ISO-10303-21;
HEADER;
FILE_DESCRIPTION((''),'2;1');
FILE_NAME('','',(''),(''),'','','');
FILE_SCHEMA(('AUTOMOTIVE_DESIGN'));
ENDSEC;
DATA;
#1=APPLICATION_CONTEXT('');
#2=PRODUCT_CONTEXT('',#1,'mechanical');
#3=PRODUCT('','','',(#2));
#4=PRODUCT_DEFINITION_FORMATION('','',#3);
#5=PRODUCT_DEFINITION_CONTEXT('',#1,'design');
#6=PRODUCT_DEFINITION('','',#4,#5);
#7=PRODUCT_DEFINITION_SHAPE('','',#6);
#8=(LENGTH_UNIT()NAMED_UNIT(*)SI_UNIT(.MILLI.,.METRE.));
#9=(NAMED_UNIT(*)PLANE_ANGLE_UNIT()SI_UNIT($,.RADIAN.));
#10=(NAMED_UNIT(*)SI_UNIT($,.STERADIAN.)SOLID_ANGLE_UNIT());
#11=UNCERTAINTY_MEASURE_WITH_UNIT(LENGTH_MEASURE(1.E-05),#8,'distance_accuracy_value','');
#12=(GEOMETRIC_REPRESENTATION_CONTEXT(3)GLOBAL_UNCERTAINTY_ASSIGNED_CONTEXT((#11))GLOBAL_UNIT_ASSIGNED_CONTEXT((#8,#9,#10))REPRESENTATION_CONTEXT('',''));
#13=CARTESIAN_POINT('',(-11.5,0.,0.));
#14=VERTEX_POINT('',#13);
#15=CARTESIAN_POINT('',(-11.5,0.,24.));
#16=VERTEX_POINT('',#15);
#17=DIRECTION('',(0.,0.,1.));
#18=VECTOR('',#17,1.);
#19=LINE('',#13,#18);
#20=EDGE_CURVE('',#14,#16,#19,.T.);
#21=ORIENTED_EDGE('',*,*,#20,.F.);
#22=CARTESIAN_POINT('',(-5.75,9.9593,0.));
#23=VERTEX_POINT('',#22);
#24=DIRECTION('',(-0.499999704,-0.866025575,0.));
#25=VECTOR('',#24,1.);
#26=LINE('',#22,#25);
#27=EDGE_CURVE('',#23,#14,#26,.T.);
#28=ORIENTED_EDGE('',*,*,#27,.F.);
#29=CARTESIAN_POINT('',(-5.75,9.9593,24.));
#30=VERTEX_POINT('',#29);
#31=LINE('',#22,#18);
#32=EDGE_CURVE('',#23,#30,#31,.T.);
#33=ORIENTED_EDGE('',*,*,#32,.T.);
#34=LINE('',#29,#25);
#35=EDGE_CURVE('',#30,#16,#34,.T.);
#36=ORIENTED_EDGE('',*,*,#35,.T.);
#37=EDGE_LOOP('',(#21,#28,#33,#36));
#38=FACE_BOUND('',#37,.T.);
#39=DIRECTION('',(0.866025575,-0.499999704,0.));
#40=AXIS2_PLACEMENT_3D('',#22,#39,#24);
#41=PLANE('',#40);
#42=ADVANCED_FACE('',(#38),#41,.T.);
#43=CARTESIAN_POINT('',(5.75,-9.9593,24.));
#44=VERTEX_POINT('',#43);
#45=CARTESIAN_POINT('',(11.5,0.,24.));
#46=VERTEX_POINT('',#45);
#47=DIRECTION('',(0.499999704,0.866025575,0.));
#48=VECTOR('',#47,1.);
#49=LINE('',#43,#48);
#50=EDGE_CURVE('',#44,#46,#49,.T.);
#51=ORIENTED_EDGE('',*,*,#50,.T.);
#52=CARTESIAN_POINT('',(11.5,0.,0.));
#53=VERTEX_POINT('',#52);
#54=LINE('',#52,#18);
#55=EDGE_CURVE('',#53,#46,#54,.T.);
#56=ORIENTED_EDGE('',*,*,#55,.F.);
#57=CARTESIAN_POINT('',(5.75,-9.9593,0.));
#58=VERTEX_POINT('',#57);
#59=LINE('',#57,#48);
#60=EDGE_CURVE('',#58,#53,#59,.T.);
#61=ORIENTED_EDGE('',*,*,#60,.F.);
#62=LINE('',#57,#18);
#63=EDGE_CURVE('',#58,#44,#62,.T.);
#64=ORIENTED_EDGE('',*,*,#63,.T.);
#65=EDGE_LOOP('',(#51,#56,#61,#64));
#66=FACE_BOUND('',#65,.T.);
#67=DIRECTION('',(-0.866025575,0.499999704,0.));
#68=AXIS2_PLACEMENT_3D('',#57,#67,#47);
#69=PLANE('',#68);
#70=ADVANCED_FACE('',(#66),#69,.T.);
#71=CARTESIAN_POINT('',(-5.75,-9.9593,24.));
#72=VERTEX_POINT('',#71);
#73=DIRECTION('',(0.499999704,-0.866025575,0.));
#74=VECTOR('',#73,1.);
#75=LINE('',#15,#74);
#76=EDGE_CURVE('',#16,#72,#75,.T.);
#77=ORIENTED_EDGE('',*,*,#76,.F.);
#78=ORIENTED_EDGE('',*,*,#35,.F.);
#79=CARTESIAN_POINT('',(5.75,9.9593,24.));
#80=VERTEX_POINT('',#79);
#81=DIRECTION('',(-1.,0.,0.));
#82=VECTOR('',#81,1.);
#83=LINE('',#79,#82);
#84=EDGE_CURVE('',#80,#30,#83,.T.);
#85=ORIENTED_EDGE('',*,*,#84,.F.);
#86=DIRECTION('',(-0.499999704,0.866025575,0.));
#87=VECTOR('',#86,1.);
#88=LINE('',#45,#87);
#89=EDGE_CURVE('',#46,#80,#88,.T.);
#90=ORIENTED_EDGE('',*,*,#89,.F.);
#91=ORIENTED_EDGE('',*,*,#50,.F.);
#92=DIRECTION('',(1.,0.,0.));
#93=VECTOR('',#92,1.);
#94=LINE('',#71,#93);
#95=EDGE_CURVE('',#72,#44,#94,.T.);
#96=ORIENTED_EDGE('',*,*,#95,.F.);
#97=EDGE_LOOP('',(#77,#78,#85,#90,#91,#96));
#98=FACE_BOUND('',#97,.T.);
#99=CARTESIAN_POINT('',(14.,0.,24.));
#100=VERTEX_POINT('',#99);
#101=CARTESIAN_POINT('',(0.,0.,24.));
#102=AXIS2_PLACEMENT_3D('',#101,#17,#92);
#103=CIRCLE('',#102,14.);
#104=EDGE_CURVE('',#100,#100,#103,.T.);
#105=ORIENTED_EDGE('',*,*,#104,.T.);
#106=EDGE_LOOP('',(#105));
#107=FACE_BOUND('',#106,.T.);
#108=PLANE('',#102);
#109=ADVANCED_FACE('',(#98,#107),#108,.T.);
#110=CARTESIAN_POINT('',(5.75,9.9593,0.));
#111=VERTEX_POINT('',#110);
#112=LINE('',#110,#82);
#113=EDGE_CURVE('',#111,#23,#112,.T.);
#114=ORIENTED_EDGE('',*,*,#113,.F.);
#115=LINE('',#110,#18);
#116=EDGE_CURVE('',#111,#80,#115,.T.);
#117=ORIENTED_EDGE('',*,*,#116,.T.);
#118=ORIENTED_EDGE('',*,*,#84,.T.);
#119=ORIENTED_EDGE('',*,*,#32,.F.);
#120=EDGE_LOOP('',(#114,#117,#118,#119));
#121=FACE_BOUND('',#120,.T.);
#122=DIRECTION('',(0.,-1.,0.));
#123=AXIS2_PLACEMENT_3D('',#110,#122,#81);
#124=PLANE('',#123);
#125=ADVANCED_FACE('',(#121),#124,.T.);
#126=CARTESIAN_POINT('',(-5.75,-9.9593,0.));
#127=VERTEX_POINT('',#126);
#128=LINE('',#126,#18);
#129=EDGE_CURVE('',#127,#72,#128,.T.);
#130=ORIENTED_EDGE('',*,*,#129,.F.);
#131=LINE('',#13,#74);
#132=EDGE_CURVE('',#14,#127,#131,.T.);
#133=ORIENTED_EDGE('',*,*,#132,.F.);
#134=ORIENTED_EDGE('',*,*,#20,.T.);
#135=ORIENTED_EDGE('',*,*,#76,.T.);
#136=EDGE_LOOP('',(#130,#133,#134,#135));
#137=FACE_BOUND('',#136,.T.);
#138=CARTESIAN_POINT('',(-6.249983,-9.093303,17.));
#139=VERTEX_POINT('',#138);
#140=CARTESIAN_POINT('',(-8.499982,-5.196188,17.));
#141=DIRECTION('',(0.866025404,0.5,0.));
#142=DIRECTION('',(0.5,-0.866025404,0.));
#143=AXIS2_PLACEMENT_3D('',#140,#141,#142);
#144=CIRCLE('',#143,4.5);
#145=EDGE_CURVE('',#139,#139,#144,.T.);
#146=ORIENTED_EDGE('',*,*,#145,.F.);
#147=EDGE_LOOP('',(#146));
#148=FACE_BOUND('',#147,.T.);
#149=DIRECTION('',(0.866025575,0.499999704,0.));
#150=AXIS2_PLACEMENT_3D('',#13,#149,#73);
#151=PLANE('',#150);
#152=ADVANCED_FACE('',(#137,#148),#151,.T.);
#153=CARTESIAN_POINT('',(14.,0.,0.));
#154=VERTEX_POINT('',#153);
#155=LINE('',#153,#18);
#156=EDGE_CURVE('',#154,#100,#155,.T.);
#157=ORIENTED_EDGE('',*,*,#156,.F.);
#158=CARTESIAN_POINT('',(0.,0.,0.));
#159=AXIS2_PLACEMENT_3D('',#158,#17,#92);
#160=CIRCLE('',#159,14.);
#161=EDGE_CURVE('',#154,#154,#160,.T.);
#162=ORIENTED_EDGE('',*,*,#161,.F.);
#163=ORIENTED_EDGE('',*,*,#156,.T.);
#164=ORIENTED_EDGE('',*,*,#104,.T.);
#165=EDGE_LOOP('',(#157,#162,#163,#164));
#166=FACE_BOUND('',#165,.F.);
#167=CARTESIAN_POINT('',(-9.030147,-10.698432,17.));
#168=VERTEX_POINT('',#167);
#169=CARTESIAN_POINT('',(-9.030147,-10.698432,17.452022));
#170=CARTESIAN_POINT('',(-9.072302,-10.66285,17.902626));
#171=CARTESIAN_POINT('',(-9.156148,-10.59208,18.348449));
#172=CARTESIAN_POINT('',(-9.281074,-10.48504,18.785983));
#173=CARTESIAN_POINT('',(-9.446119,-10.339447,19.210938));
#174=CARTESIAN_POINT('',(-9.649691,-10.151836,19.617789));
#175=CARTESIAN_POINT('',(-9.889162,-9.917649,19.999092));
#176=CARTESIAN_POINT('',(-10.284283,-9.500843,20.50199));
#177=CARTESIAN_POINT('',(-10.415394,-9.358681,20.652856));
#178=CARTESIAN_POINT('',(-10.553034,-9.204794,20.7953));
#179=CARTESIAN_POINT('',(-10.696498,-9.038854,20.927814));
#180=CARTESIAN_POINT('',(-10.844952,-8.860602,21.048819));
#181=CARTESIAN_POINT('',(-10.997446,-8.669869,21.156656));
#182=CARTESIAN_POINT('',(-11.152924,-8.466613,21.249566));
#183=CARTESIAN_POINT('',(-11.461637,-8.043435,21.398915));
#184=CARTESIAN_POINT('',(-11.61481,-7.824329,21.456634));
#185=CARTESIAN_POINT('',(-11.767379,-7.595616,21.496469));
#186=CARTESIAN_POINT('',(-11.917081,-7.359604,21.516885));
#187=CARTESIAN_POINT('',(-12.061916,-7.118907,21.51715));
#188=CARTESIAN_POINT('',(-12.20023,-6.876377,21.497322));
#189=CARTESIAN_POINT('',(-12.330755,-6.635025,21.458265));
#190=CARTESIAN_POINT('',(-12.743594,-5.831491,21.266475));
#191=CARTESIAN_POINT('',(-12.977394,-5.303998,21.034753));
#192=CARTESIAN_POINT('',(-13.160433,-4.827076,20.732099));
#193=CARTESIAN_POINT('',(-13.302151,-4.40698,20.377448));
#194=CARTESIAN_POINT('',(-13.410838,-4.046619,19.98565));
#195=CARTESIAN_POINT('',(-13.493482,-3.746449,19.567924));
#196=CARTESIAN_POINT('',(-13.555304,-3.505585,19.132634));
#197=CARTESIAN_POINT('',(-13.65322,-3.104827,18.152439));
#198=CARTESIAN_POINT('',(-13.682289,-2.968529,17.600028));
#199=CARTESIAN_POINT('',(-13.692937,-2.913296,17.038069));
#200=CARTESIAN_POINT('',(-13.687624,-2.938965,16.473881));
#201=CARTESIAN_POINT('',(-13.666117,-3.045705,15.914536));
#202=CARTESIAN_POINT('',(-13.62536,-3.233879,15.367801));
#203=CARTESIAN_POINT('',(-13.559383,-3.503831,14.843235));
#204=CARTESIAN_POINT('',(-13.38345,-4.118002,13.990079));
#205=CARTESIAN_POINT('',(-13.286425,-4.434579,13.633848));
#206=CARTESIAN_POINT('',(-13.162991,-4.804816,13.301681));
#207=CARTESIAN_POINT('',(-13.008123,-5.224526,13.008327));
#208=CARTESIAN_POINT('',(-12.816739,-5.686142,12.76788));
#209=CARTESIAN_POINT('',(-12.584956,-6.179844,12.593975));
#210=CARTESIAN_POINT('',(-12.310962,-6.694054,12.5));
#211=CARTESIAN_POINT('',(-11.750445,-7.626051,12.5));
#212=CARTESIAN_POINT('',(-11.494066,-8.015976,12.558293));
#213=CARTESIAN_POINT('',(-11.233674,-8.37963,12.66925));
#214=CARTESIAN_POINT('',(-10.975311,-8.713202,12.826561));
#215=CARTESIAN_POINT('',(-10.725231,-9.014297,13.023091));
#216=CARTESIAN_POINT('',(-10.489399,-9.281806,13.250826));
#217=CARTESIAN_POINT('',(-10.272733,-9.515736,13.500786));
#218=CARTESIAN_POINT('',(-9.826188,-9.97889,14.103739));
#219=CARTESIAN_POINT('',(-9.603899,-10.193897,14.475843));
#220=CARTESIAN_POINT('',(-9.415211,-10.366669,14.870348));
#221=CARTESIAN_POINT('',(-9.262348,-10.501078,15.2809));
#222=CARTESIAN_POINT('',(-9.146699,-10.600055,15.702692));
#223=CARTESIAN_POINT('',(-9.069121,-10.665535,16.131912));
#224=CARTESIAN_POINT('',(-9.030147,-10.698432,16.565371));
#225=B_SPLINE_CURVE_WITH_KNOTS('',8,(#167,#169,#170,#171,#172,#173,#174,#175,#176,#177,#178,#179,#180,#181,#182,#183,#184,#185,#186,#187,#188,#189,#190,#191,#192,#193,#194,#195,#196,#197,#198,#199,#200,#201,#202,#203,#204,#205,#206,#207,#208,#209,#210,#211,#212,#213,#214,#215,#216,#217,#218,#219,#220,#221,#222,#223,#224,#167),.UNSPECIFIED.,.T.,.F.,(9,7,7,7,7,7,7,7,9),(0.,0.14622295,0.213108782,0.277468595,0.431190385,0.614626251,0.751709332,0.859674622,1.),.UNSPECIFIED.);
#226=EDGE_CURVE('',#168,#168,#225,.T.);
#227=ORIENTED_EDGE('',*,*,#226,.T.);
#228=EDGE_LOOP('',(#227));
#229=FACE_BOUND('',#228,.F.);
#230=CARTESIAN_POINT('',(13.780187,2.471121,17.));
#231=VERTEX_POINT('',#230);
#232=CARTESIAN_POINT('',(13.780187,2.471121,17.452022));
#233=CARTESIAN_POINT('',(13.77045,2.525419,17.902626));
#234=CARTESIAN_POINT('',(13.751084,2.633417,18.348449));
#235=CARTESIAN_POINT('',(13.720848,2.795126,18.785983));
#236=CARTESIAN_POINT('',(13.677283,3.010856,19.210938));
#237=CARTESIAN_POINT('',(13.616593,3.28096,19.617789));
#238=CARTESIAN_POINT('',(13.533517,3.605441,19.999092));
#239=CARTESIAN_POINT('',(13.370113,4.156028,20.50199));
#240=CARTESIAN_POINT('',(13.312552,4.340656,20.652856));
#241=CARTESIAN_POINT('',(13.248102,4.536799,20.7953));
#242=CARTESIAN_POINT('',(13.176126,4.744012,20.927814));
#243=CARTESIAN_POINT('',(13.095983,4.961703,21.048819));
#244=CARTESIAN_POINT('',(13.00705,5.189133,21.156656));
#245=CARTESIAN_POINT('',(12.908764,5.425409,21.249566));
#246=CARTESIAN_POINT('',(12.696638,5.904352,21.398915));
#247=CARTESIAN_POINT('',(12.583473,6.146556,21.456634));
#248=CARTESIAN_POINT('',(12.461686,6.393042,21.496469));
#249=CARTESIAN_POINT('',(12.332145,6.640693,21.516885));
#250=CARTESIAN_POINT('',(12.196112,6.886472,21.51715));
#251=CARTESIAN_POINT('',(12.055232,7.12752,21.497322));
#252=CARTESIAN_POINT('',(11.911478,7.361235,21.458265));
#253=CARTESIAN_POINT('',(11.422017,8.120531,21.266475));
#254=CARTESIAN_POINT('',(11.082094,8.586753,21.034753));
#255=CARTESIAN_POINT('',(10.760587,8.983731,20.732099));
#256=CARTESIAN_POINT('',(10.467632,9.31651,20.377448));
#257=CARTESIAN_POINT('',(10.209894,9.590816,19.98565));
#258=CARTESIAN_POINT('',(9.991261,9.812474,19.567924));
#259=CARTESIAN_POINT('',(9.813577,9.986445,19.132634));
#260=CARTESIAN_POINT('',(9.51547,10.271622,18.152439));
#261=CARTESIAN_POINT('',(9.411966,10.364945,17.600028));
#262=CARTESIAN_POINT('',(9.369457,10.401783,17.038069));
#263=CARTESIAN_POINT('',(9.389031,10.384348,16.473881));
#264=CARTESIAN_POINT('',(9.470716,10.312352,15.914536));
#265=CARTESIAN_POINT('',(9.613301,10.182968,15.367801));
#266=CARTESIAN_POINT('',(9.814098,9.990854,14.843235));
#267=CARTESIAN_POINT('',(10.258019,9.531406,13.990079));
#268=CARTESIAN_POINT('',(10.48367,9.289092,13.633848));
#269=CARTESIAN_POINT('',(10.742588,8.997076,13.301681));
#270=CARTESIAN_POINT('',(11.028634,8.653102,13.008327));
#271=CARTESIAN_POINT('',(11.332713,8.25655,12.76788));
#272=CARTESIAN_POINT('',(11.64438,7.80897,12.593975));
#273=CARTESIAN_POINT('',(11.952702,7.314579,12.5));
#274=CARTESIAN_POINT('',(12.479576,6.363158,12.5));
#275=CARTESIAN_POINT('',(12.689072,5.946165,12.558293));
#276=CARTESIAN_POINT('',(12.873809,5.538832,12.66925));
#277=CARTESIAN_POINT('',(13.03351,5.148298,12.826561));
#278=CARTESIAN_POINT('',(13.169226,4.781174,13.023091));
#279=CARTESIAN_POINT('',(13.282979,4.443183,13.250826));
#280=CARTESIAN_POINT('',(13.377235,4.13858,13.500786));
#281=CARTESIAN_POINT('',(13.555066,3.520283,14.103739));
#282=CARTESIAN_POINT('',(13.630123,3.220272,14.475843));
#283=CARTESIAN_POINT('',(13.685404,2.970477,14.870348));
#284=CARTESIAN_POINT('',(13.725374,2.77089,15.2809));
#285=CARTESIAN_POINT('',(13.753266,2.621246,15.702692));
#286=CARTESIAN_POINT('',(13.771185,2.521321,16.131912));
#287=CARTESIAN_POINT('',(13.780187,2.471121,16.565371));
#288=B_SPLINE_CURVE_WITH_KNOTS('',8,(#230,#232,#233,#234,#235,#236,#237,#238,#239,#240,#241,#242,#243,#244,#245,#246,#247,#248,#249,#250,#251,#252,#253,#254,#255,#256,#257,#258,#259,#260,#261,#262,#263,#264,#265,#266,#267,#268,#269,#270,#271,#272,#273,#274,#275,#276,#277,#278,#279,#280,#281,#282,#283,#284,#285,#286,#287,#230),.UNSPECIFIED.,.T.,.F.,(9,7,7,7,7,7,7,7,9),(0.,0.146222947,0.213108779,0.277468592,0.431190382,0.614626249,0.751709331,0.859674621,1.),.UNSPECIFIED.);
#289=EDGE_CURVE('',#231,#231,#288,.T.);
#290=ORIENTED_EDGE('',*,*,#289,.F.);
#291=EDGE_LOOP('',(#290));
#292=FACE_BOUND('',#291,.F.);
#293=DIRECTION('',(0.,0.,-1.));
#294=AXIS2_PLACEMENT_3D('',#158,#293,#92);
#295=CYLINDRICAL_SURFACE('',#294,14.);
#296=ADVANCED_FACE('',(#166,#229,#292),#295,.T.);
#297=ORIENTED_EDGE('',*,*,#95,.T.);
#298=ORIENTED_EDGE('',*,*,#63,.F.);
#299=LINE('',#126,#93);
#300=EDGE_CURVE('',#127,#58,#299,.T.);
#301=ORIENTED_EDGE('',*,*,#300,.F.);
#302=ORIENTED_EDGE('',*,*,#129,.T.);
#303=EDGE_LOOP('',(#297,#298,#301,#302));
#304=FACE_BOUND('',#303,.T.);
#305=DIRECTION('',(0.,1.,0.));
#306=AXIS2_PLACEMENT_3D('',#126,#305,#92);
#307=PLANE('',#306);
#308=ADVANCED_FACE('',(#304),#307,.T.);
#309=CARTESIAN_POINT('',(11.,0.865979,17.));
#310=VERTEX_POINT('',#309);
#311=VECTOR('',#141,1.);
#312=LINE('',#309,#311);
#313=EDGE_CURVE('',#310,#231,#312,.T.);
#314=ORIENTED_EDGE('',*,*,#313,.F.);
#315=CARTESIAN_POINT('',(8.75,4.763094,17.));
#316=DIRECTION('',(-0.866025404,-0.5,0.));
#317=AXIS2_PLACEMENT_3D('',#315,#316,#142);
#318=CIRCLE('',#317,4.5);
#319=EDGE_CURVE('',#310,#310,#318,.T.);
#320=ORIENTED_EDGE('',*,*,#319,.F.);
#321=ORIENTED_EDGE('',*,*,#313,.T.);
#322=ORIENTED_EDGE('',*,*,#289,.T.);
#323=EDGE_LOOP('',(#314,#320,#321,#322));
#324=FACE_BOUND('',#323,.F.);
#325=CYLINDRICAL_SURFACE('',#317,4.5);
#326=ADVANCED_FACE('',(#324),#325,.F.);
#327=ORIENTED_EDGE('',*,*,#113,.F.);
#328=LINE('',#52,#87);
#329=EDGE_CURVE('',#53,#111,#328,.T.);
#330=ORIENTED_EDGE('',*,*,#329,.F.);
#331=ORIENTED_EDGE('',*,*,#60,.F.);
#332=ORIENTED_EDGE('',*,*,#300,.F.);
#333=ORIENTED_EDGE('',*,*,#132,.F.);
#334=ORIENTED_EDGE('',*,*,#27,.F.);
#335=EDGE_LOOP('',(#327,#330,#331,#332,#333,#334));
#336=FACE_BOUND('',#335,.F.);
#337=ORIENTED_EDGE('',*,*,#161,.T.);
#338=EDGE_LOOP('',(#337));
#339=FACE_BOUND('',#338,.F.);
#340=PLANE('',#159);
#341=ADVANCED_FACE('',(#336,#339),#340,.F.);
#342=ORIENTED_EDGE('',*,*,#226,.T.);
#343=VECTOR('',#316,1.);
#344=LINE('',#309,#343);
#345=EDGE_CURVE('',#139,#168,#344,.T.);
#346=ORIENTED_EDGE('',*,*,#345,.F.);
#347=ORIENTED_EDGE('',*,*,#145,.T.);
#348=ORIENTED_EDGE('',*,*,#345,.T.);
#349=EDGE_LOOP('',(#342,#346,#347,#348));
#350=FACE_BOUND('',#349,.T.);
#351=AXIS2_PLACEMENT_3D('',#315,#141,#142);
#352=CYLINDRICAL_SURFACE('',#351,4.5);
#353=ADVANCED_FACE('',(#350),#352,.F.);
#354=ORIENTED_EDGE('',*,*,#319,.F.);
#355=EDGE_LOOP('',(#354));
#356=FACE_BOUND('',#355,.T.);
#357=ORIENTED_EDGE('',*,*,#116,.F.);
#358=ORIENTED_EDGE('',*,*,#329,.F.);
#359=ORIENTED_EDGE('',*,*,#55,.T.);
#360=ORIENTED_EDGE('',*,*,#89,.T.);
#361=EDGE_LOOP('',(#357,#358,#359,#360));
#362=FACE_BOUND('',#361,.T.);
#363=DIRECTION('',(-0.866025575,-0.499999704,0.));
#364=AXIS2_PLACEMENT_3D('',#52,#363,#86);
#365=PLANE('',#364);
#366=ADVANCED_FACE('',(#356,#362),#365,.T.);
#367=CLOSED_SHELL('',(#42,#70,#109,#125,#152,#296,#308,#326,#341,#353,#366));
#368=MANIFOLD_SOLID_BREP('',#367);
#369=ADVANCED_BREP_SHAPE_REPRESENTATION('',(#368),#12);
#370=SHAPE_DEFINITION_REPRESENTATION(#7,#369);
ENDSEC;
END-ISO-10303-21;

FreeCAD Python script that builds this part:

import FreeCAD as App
import Part
import Sketcher

V = App.Vector
Q = App.Units.Quantity


def add_polygon(sketch, points):
    """Adds a closed chain of lines whose ends are joined by coincident constraints."""
    first, n = sketch.GeometryCount, len(points)
    for a, b in zip(points, points[1:] + points[:1]):
        sketch.addGeometry(Part.LineSegment(App.Vector(*a, 0), App.Vector(*b, 0)), False)
    for i in range(n):
        sketch.addConstraint(Sketcher.Constraint("Coincident", first + i, 2, first + (i + 1) % n, 1))

doc = App.newDocument("Part")
body = doc.addObject("PartDesign::Body", "Body")

sketch1 = body.newObject("Sketcher::SketchObject", "Sketch")
sketch1.AttachmentSupport = (doc.getObject("XY_Plane"), [""])
sketch1.MapMode = "FlatFace"
sketch1.addGeometry(Part.Circle(V(0, 0, 0), V(0, 0, 1), 14), False)
add_polygon(sketch1, [(6, 10), (12, 0), (6, -10), (-6, -10), (-12, 0), (-6, 10)])
sketch1.addConstraint(Sketcher.Constraint("Horizontal", 3))
sketch1.addConstraint(Sketcher.Constraint("Horizontal", 6))
sketch1.addConstraint(Sketcher.Constraint("Coincident", 0, 3, -1, 1))
sketch1.addConstraint(Sketcher.Constraint("Symmetric", 1, 2, 4, 2, -1, 1))
sketch1.addConstraint(Sketcher.Constraint("Symmetric", 2, 2, 5, 2, -1, 1))
sketch1.addConstraint(Sketcher.Constraint("PointOnObject", 1, 2, -1))
sketch1.addConstraint(Sketcher.Constraint("Parallel", 1, 4))
sketch1.addConstraint(Sketcher.Constraint("Vertical", 3, 2, 5, 2))
sketch1.addConstraint(Sketcher.Constraint("Diameter", 0, 28.0))
sketch1.addConstraint(Sketcher.Constraint("DistanceX", 4, 2, 1, 2, 23.0))
sketch1.addConstraint(Sketcher.Constraint("Angle", 1, Q("-60 deg")))
sketch1.addConstraint(Sketcher.Constraint("DistanceX", 3, 2, 3, 1, 11.5))
pad1 = body.newObject("PartDesign::Pad", "Pad")
pad1.Profile = sketch1
pad1.Length = 24

sketch2 = body.newObject("Sketcher::SketchObject", "Sketch001")
sketch2.Placement = App.Placement(V(8.625, 4.9796, 0), App.Rotation(V(0.5, -0.866025404, 0), V(0, 0, 1), V(-0.866025404, -0.5, 0), "ZXY"))
sketch2.addGeometry(Part.Circle(V(0.2, 17, 0), V(0, 0, 1), 4.5), False)
sketch2.addConstraint(Sketcher.Constraint("Diameter", 0, 9.0))
sketch2.addConstraint(Sketcher.Constraint("DistanceY", -1, 1, 0, 3, 17.0))
sketch2.addConstraint(Sketcher.Constraint("DistanceX", -1, 1, 0, 3, 0.25))
pocket1 = body.newObject("PartDesign::Pocket", "Pocket")
pocket1.Profile = sketch2
pocket1.Length = 54
pocket1.Midplane = True

doc.recompute()
